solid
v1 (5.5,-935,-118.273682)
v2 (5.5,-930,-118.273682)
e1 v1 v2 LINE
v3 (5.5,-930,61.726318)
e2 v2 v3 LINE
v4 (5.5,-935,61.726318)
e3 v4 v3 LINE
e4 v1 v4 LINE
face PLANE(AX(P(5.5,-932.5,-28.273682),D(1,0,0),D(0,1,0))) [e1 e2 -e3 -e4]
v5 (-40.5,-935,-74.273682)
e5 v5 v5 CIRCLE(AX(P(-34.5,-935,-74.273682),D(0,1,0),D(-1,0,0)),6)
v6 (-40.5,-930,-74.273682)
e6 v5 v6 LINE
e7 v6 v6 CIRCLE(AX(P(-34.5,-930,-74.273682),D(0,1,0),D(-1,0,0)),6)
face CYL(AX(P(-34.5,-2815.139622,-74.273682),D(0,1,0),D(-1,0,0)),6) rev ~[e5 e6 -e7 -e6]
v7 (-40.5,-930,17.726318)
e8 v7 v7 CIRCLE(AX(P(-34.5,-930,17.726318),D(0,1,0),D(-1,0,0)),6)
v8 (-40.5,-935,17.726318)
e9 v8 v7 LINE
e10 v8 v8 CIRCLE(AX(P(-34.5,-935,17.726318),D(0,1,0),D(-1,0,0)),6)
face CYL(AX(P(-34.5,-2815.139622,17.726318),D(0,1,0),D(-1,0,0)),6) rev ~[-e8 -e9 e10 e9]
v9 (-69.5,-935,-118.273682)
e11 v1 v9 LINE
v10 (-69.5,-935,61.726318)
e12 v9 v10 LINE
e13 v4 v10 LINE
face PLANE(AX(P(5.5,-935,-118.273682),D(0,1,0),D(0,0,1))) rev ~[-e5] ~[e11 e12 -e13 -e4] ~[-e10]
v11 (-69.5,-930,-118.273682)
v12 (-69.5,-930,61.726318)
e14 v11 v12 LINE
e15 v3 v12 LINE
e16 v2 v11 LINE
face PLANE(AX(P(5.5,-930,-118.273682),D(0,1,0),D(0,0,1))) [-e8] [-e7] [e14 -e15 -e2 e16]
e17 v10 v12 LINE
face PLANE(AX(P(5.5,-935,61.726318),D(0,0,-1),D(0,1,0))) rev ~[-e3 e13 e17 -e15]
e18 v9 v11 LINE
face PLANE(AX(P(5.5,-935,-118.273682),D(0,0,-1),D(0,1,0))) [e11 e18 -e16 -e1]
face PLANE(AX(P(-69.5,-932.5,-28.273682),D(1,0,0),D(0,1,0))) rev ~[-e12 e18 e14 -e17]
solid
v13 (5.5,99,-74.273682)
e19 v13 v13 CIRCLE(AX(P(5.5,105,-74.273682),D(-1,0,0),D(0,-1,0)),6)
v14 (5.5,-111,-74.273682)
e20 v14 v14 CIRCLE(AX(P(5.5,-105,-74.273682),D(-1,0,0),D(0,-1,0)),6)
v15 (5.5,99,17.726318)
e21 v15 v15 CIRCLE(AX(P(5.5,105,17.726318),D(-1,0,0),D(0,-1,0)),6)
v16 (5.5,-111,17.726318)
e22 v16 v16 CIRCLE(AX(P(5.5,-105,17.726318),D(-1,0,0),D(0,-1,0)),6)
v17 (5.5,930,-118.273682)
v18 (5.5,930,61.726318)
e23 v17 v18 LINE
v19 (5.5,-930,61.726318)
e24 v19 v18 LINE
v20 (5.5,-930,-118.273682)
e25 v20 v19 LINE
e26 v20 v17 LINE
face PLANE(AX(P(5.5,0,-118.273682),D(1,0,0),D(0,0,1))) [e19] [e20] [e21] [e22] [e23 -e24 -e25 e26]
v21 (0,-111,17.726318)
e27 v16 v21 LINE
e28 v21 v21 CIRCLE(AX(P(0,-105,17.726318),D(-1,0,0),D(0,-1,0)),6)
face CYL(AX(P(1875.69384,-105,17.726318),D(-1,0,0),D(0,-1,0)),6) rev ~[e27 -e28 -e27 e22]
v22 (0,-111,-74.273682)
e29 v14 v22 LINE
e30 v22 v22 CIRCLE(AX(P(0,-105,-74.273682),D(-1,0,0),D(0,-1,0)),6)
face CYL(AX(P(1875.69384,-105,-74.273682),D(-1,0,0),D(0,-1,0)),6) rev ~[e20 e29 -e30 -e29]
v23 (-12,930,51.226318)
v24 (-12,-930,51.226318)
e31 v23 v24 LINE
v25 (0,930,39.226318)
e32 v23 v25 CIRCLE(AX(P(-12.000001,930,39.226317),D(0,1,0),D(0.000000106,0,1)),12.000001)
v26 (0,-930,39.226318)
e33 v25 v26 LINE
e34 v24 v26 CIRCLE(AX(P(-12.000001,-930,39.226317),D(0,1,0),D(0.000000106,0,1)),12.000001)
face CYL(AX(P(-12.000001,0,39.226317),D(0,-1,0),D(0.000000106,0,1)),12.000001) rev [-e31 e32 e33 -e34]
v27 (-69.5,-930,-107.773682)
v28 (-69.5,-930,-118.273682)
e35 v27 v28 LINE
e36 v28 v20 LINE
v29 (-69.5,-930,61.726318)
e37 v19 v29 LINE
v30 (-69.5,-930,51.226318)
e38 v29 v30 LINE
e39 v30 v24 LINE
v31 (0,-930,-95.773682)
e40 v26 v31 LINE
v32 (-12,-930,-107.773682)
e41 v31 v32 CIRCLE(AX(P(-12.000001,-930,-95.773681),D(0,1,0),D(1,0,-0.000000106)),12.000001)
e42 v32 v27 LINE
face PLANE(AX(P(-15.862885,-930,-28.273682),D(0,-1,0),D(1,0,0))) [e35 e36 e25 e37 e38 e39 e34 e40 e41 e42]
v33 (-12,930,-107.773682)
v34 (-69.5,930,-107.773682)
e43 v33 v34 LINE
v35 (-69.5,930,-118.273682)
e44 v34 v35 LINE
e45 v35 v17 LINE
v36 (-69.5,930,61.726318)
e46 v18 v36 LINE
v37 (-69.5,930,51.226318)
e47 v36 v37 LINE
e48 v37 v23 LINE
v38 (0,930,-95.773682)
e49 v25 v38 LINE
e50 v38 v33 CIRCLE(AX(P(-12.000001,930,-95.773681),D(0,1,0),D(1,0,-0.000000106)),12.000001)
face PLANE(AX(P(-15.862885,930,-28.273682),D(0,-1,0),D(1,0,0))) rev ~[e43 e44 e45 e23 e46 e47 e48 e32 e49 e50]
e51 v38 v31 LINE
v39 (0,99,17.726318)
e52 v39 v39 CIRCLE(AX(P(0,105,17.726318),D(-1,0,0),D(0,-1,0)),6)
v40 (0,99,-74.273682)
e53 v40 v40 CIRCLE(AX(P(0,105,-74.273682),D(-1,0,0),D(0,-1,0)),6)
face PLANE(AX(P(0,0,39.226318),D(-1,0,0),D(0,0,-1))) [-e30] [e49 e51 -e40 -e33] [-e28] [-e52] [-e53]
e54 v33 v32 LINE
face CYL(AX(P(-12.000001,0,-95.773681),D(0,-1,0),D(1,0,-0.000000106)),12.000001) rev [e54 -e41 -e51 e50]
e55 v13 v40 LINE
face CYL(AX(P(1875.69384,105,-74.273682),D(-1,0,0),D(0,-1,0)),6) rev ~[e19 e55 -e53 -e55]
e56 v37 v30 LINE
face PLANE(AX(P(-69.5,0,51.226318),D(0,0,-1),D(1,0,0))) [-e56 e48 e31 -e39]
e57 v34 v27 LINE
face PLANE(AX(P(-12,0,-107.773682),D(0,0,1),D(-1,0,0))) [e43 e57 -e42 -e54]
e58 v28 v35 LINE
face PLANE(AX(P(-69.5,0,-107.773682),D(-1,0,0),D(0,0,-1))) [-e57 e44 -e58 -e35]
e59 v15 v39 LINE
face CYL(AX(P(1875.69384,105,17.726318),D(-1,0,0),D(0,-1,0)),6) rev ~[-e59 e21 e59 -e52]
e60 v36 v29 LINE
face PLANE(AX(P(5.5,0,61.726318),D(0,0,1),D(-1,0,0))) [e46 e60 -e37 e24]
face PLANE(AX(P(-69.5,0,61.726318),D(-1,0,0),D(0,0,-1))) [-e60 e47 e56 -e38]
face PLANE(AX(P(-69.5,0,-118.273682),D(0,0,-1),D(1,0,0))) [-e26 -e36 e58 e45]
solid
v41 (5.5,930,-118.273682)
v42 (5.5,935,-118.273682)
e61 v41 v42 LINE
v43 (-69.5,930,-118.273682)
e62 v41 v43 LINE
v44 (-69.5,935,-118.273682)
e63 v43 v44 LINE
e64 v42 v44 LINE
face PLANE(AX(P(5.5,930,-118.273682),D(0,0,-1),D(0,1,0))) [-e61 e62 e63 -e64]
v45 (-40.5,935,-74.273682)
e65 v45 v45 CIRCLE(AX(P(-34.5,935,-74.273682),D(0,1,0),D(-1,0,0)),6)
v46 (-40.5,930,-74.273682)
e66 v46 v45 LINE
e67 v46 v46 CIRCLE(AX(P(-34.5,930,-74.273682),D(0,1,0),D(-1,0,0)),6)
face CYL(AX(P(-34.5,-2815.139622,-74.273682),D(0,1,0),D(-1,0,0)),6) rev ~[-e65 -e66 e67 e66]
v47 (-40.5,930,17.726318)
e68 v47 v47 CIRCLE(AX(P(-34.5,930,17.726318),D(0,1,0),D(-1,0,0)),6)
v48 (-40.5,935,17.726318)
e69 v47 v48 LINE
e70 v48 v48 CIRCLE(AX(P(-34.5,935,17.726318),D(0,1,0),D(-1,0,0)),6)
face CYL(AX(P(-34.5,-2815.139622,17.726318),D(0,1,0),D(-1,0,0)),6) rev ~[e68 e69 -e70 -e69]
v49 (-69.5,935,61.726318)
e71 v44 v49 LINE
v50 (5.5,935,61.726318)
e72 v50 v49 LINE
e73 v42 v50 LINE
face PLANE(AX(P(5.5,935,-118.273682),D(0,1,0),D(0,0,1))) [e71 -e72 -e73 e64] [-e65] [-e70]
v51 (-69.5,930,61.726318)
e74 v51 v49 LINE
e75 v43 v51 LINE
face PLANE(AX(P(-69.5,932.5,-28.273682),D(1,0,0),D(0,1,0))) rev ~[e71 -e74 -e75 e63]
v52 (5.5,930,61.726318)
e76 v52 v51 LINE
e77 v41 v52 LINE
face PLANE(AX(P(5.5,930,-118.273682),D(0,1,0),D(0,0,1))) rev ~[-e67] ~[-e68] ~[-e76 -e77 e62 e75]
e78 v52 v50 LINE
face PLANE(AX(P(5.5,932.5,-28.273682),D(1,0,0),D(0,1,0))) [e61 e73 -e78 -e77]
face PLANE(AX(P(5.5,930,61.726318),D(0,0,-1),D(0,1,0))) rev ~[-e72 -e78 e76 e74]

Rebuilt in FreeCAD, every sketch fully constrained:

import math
import FreeCAD as App
import Part
import Sketcher
from FreeCAD import Vector
Q = App.Units.Quantity

doc = App.newDocument("Part")
body = doc.addObject("PartDesign::Body", "Body")

# Sketch on XZ plane
sketch1 = body.newObject("Sketcher::SketchObject", "Sketch")
sketch1.AttachmentSupport = (doc.getObject("XZ_Plane"), [""])
sketch1.MapMode = "FlatFace"
sketch1.addGeometry([
    Part.LineSegment(Vector(5.5, 61.726318, 0), Vector(-69.5, 61.726318, 0)),  # 0
    Part.LineSegment(Vector(-69.5, 61.726318, 0), Vector(-69.5, 51.226318, 0)),  # 1
    Part.LineSegment(Vector(-69.5, 51.226318, 0), Vector(-12, 51.226318, 0)),  # 2
    Part.ArcOfCircle(Part.Circle(Vector(-12.000001, 39.226317, 0), Vector(0, 0, 1), 12.000001), math.radians(0.000006), math.radians(89.999994)),  # 3
    Part.LineSegment(Vector(0, 39.226318, 0), Vector(0, -95.773682, 0)),  # 4
    Part.ArcOfCircle(Part.Circle(Vector(-12.000001, -95.773681, 0), Vector(0, 0, 1), 12.000001), math.radians(-89.999994), math.radians(-0.000006)),  # 5
    Part.LineSegment(Vector(-12, -107.773682, 0), Vector(-69.5, -107.773682, 0)),  # 6
    Part.LineSegment(Vector(-69.5, -107.773682, 0), Vector(-69.5, -118.273682, 0)),  # 7
    Part.LineSegment(Vector(-69.5, -118.273682, 0), Vector(5.5, -118.273682, 0)),  # 8
    Part.LineSegment(Vector(5.5, -118.273682, 0), Vector(5.5, 61.726318, 0)),  # 9
], False)
sketch1.addConstraint([
    Sketcher.Constraint("Coincident", 0, 2, 1, 1),
    Sketcher.Constraint("Coincident", 1, 2, 2, 1),
    Sketcher.Constraint("Tangent", 2, 2, 3, 2),
    Sketcher.Constraint("Tangent", 3, 1, 4, 1),
    Sketcher.Constraint("Tangent", 4, 2, 5, 2),
    Sketcher.Constraint("Tangent", 5, 1, 6, 1),
    Sketcher.Constraint("Coincident", 6, 2, 7, 1),
    Sketcher.Constraint("Coincident", 7, 2, 8, 1),
    Sketcher.Constraint("Coincident", 8, 2, 9, 1),
    Sketcher.Constraint("Coincident", 9, 2, 0, 1),
    Sketcher.Constraint("Horizontal", 0),
    Sketcher.Constraint("Vertical", 1),
    Sketcher.Constraint("Horizontal", 2),
    Sketcher.Constraint("Vertical", 4),
    Sketcher.Constraint("Horizontal", 6),
    Sketcher.Constraint("Vertical", 7),
    Sketcher.Constraint("Horizontal", 8),
    Sketcher.Constraint("Vertical", 9),
    Sketcher.Constraint("Equal", 3, 5),
    Sketcher.Constraint("PointOnObject", 3, 1, -2),
    Sketcher.Constraint("Vertical", 1, 2, 6, 2),
    Sketcher.Constraint("Equal", 1, 7),
    Sketcher.Constraint("Radius", 3, Q("12.000001 mm")),
    Sketcher.Constraint("DistanceX", 0, 2, 0, 1, Q("75 mm")),
    Sketcher.Constraint("DistanceY", 4, 2, 4, 1, Q("135 mm")),
    Sketcher.Constraint("DistanceY", 9, 1, 9, 2, Q("180 mm")),
    Sketcher.Constraint("DistanceX", 2, 1, 2, 2, Q("57.5 mm")),
    Sketcher.Constraint("DistanceY", 5, 3, -1, 1, Q("95.773681 mm")),
])
pad1 = body.newObject("PartDesign::Pad", "Pad")
pad1.Profile = sketch1
pad1.Length = 1860
pad1.Midplane = True

# Sketch on YZ plane
sketch2 = body.newObject("Sketcher::SketchObject", "Sketch001")
sketch2.AttachmentSupport = (doc.getObject("YZ_Plane"), [""])
sketch2.MapMode = "FlatFace"
sketch2.AttachmentOffset = App.Placement(Vector(0, 0, 5.5), App.Rotation())
sketch2.addGeometry([
    Part.Circle(Vector(-105, 17.726318, 0), Vector(0, 0, 1), 6),
    Part.Circle(Vector(105, 17.726318, 0), Vector(0, 0, 1), 6),
    Part.Circle(Vector(105, -74.273682, 0), Vector(0, 0, 1), 6),
    Part.Circle(Vector(-105, -74.273682, 0), Vector(0, 0, 1), 6),
], False)
sketch2.addConstraint([
    Sketcher.Constraint("Equal", 0, 1),
    Sketcher.Constraint("Equal", 1, 2),
    Sketcher.Constraint("Equal", 2, 3),
    Sketcher.Constraint("Symmetric", 0, 3, 1, 3, -2),
    Sketcher.Constraint("Symmetric", 2, 3, 3, 3, -2),
    Sketcher.Constraint("Vertical", 1, 3, 2, 3),
    Sketcher.Constraint("Diameter", 0, Q("12 mm")),
    Sketcher.Constraint("DistanceX", 0, 3, -1, 1, Q("105 mm")),
    Sketcher.Constraint("DistanceY", 2, 3, 1, 3, Q("92 mm")),
    Sketcher.Constraint("DistanceY", 2, 3, -1, 1, Q("74.273682 mm")),
])
doc.recompute()
hole = body.newObject("PartDesign::Hole", "Hole")
hole.Profile = sketch2
hole.ThreadType = "None"
hole.Diameter = 12
hole.DepthType = "ThroughAll"
body2 = doc.addObject("PartDesign::Body", "Body001")
body2.AllowCompound = True

# Sketch on YZ plane
sketch3 = body2.newObject("Sketcher::SketchObject", "Sketch002")
sketch3.AttachmentSupport = (doc.getObject("YZ_Plane001"), [""])
sketch3.MapMode = "FlatFace"
sketch3.AttachmentOffset = App.Placement(Vector(0, 0, 5.5), App.Rotation())
sketch3.addGeometry([
    Part.LineSegment(Vector(930, 61.726318, 0), Vector(930, -118.273682, 0)),  # 0
    Part.LineSegment(Vector(930, -118.273682, 0), Vector(935, -118.273682, 0)),  # 1
    Part.LineSegment(Vector(935, -118.273682, 0), Vector(935, 61.726318, 0)),  # 2
    Part.LineSegment(Vector(935, 61.726318, 0), Vector(930, 61.726318, 0)),  # 3
    Part.LineSegment(Vector(-935, 61.726318, 0), Vector(-935, -118.273682, 0)),  # 4
    Part.LineSegment(Vector(-935, -118.273682, 0), Vector(-930, -118.273682, 0)),  # 5
    Part.LineSegment(Vector(-930, -118.273682, 0), Vector(-930, 61.726318, 0)),  # 6
    Part.LineSegment(Vector(-930, 61.726318, 0), Vector(-935, 61.726318, 0)),  # 7
], False)
sketch3.addConstraint([
    Sketcher.Constraint("Coincident", 0, 2, 1, 1),
    Sketcher.Constraint("Coincident", 1, 2, 2, 1),
    Sketcher.Constraint("Coincident", 2, 2, 3, 1),
    Sketcher.Constraint("Coincident", 3, 2, 0, 1),
    Sketcher.Constraint("Coincident", 4, 2, 5, 1),
    Sketcher.Constraint("Coincident", 5, 2, 6, 1),
    Sketcher.Constraint("Coincident", 6, 2, 7, 1),
    Sketcher.Constraint("Coincident", 7, 2, 4, 1),
    Sketcher.Constraint("Vertical", 0),
    Sketcher.Constraint("Horizontal", 1),
    Sketcher.Constraint("Vertical", 2),
    Sketcher.Constraint("Horizontal", 3),
    Sketcher.Constraint("Vertical", 4),
    Sketcher.Constraint("Horizontal", 5),
    Sketcher.Constraint("Vertical", 6),
    Sketcher.Constraint("Horizontal", 7),
    Sketcher.Constraint("Symmetric", 1, 2, 4, 2, -2),
    Sketcher.Constraint("Symmetric", 3, 2, 6, 2, -2),
    Sketcher.Constraint("DistanceX", 1, 1, 1, 2, Q("5 mm")),
    Sketcher.Constraint("DistanceY", 0, 2, 0, 1, Q("180 mm")),
    Sketcher.Constraint("DistanceX", -1, 1, 0, 2, Q("930 mm")),
    Sketcher.Constraint("DistanceY", 0, 2, -1, 1, Q("118.273682 mm")),
])
pad2 = body2.newObject("PartDesign::Pad", "Pad001")
pad2.Profile = sketch3
pad2.Length = 75
pad2.Reversed = True

# Sketch on XZ plane
sketch4 = body2.newObject("Sketcher::SketchObject", "Sketch003")
sketch4.AttachmentSupport = (doc.getObject("XZ_Plane001"), [""])
sketch4.MapMode = "FlatFace"
sketch4.AttachmentOffset = App.Placement(Vector(0, 0, 935), App.Rotation())
sketch4.addGeometry([
    Part.Circle(Vector(-34.5, 17.726318, 0), Vector(0, 0, 1), 6),
    Part.Circle(Vector(-34.5, -74.273682, 0), Vector(0, 0, 1), 6),
], False)
sketch4.addConstraint([
    Sketcher.Constraint("Equal", 0, 1),
    Sketcher.Constraint("Vertical", 0, 3, 1, 3),
    Sketcher.Constraint("Diameter", 0, Q("12 mm")),
    Sketcher.Constraint("DistanceY", 1, 3, 0, 3, Q("92 mm")),
    Sketcher.Constraint("DistanceX", 0, 3, -1, 1, Q("34.5 mm")),
    Sketcher.Constraint("DistanceY", 1, 3, -1, 1, Q("74.273682 mm")),
])
doc.recompute()
hole2 = body2.newObject("PartDesign::Hole", "Hole001")
hole2.Profile = sketch4
hole2.ThreadType = "None"
hole2.Diameter = 12
hole2.DepthType = "ThroughAll"

doc.recompute()
